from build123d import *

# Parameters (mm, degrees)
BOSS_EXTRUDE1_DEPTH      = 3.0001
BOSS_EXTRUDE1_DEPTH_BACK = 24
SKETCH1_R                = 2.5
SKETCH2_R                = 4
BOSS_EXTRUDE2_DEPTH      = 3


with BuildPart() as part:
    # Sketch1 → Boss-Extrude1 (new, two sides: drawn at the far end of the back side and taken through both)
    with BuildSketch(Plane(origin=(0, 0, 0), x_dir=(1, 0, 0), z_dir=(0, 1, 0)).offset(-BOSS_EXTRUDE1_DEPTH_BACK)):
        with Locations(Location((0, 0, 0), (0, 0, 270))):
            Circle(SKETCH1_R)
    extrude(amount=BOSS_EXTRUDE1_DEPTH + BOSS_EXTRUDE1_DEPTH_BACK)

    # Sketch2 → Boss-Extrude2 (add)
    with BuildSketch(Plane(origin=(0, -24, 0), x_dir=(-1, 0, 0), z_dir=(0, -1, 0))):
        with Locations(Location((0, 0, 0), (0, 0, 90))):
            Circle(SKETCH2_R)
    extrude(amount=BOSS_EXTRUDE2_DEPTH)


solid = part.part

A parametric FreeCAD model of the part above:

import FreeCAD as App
import Part
import Sketcher

doc = App.newDocument("Part")
body = doc.addObject("PartDesign::Body", "Body")

sketch1 = doc.addObject("Sketcher::SketchObject", "Sketch")
body.addObject(sketch1)
sketch1.AttachmentSupport = (doc.XZ_Plane, [""])
sketch1.MapMode = "FlatFace"
sketch1.addGeometry(Part.Circle(App.Vector(0, 0, 0), App.Vector(0, 0, 1), 2.5), False)
sketch1.addConstraint(Sketcher.Constraint("Coincident", 0, 3, -1, 1))
sketch1.addConstraint(Sketcher.Constraint("Diameter", 0, 5.0))
pad1 = doc.addObject("PartDesign::Pad", "Pad")
body.addObject(pad1)
pad1.Profile = sketch1
pad1.Type = "TwoLengths"
pad1.Length = 3.0001
pad1.Length2 = 24
pad1.Reversed = True

sketch2 = doc.addObject("Sketcher::SketchObject", "Sketch001")
body.addObject(sketch2)
sketch2.AttachmentSupport = (doc.XZ_Plane, [""])
sketch2.MapMode = "FlatFace"
sketch2.AttachmentOffset = App.Placement(App.Vector(0, 0, 24), App.Rotation())
sketch2.addGeometry(Part.Circle(App.Vector(0, 0, 0), App.Vector(0, 0, 1), 4), False)
sketch2.addConstraint(Sketcher.Constraint("Coincident", 0, 3, -1, 1))
sketch2.addConstraint(Sketcher.Constraint("Diameter", 0, 8.0))
pad2 = doc.addObject("PartDesign::Pad", "Pad001")
body.addObject(pad2)
pad2.Profile = sketch2
pad2.Length = 3

doc.recompute()
